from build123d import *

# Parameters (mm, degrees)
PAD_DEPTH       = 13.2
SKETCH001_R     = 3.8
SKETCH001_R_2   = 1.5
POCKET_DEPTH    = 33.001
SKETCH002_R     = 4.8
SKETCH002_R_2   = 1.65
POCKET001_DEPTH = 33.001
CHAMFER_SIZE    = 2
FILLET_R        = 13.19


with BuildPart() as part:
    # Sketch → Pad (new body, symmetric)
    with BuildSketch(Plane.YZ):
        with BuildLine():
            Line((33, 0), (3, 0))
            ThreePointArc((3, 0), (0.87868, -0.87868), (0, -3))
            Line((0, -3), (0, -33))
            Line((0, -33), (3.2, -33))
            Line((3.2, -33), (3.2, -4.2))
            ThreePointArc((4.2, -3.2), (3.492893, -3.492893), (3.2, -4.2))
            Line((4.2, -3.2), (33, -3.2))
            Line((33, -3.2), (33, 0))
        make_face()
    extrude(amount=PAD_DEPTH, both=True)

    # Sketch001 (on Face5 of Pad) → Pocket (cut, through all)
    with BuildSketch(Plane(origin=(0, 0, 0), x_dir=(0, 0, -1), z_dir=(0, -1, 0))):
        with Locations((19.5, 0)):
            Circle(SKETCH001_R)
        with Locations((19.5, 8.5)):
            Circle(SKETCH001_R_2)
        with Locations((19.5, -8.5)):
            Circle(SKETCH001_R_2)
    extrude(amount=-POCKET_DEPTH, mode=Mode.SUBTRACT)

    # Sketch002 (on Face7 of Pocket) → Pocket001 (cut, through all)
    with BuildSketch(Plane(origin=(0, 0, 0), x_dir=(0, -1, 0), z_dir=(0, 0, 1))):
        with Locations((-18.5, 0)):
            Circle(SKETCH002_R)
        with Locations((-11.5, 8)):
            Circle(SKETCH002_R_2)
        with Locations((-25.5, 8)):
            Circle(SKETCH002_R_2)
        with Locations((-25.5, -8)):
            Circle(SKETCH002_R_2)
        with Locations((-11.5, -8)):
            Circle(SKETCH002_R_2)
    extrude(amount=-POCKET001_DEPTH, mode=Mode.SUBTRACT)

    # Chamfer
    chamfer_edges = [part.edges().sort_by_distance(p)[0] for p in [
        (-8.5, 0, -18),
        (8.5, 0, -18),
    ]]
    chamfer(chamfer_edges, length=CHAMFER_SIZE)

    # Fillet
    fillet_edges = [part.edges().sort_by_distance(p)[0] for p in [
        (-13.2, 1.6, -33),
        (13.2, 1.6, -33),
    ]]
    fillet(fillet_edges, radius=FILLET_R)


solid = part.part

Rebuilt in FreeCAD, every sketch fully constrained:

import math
import FreeCAD as App
import Part
import Sketcher

V = App.Vector
Q = App.Units.Quantity


def edges_at(feature, points):
    """Names of the edges that pass closest to the given points."""
    edges = feature.Shape.Edges
    near = lambda p: min(range(len(edges)), key=lambda i: edges[i].distToShape(Part.Vertex(*p))[0])
    return sorted({f"Edge{near(p) + 1}" for p in points})

doc = App.newDocument("Part")
params = doc.addObject("Spreadsheet::Sheet", "Params")
for row, (alias, value) in enumerate([
    ("sketch1_radius", "3.000001 mm"),
    ("sketch1_radius2", "0.999999 mm"),
    ("sketch1_width", "30 mm"),
    ("sketch1_width2", "3.2 mm"),
    ("pad1_length", "26.4 mm"),
    ("sketch2_diameter", "3 mm"),
    ("sketch2_diameter2", "7.6 mm"),
    ("sketch3_diameter", "9.6 mm"),
    ("sketch3_diameter2", "3.3 mm"),
    ("chamfer_size", "2 mm"),
    ("fillet_radius", "13.19 mm"),
], start=1):
    params.set(f"A{row}", alias)
    params.set(f"B{row}", "=" + value)
    params.setAlias(f"B{row}", alias)

body = doc.addObject("PartDesign::Body", "Body")

# Sketch on YZ plane
sketch1 = body.newObject("Sketcher::SketchObject", "Sketch")
sketch1.AttachmentSupport = (doc.getObject("YZ_Plane"), [""])
sketch1.MapMode = "FlatFace"
sketch1.addGeometry([
    Part.LineSegment(V(33, 0, 0), V(3, 0, 0)),  # 0
    Part.ArcOfCircle(Part.Circle(V(3, -3, 0), V(0, 0, 1), 3), math.radians(90), math.radians(180)),  # 1
    Part.LineSegment(V(0, -3, 0), V(0, -33, 0)),  # 2
    Part.LineSegment(V(0, -33, 0), V(3.2, -33, 0)),  # 3
    Part.LineSegment(V(3.2, -33, 0), V(3.2, -4.2, 0)),  # 4
    Part.ArcOfCircle(Part.Circle(V(4.2, -4.2, 0), V(0, 0, 1), 1), math.radians(90), math.radians(180)),  # 5
    Part.LineSegment(V(4.2, -3.2, 0), V(33, -3.2, 0)),  # 6
    Part.LineSegment(V(33, -3.2, 0), V(33, 0, 0)),  # 7
], False)
sketch1.addConstraint([
    Sketcher.Constraint("Tangent", 0, 2, 1, 1),
    Sketcher.Constraint("Tangent", 1, 2, 2, 1),
    Sketcher.Constraint("Coincident", 2, 2, 3, 1),
    Sketcher.Constraint("Coincident", 3, 2, 4, 1),
    Sketcher.Constraint("Tangent", 4, 2, 5, 2),
    Sketcher.Constraint("Tangent", 5, 1, 6, 1),
    Sketcher.Constraint("Coincident", 6, 2, 7, 1),
    Sketcher.Constraint("Coincident", 7, 2, 0, 1),
    Sketcher.Constraint("Horizontal", 0),
    Sketcher.Constraint("Vertical", 2),
    Sketcher.Constraint("Horizontal", 3),
    Sketcher.Constraint("Vertical", 4),
    Sketcher.Constraint("Horizontal", 6),
    Sketcher.Constraint("Vertical", 7),
    Sketcher.Constraint("PointOnObject", 0, 2, -1),
    Sketcher.Constraint("PointOnObject", 1, 2, -2),
    Sketcher.Constraint("Equal", 0, 2),
    Sketcher.Constraint("Equal", 6, 4),
    Sketcher.Constraint("Radius", 1, Q("3.000001 mm")),
    Sketcher.Constraint("Radius", 5, Q("0.999999 mm")),
    Sketcher.Constraint("DistanceX", 0, 2, 0, 1, Q("30 mm")),
    Sketcher.Constraint("DistanceX", 3, 1, 3, 2, Q("3.2 mm")),
])
sketch1.setExpression("Constraints[18]", "Params.sketch1_radius")
sketch1.setExpression("Constraints[19]", "Params.sketch1_radius2")
sketch1.setExpression("Constraints[20]", "Params.sketch1_width")
sketch1.setExpression("Constraints[21]", "Params.sketch1_width2")
pad1 = body.newObject("PartDesign::Pad", "Pad")
pad1.Profile = sketch1
pad1.setExpression("Length", "Params.pad1_length")
pad1.Midplane = True

# Sketch on XZ plane
sketch2 = body.newObject("Sketcher::SketchObject", "Sketch001")
sketch2.AttachmentSupport = (doc.getObject("XZ_Plane"), [""])
sketch2.MapMode = "FlatFace"
sketch2.addGeometry([
    Part.Circle(V(0, -19.5, 0), V(0, 0, 1), 3.8),
    Part.Circle(V(8.5, -19.5, 0), V(0, 0, 1), 1.5),
    Part.Circle(V(-8.5, -19.5, 0), V(0, 0, 1), 1.5),
], False)
sketch2.addConstraint([
    Sketcher.Constraint("Equal", 1, 2),
    Sketcher.Constraint("Symmetric", 1, 3, 2, 3, -2),
    Sketcher.Constraint("PointOnObject", 0, 3, -2),
    Sketcher.Constraint("Horizontal", 0, 3, 1, 3),
    Sketcher.Constraint("Diameter", 1, Q("3 mm")),
    Sketcher.Constraint("Diameter", 0, Q("7.6 mm")),
    Sketcher.Constraint("DistanceX", 2, 3, 1, 3, Q("17 mm")),
    Sketcher.Constraint("DistanceY", 0, 3, -1, 1, Q("19.5 mm")),
])
sketch2.setExpression("Constraints[4]", "Params.sketch2_diameter")
sketch2.setExpression("Constraints[5]", "Params.sketch2_diameter2")
pocket1 = body.newObject("PartDesign::Pocket", "Pocket")
pocket1.Profile = sketch2
pocket1.Type = "ThroughAll"

# Sketch on XY plane
sketch3 = body.newObject("Sketcher::SketchObject", "Sketch002")
sketch3.AttachmentSupport = (doc.getObject("XY_Plane"), [""])
sketch3.MapMode = "FlatFace"
sketch3.addGeometry([
    Part.Circle(V(0, 18.5, 0), V(0, 0, 1), 4.8),  # 0
    Part.Circle(V(8, 11.5, 0), V(0, 0, 1), 1.6),  # 1
    Part.Circle(V(8, 25.5, 0), V(0, 0, 1), 1.6),  # 2
    Part.Circle(V(-8, 25.5, 0), V(0, 0, 1), 1.6),  # 3
    Part.Circle(V(-8, 11.5, 0), V(0, 0, 1), 1.6),  # 4
], False)
sketch3.addConstraint([
    Sketcher.Constraint("Equal", 1, 2),
    Sketcher.Constraint("Equal", 2, 3),
    Sketcher.Constraint("Equal", 3, 4),
    Sketcher.Constraint("Symmetric", 2, 3, 3, 3, -2),
    Sketcher.Constraint("Symmetric", 1, 3, 4, 3, -2),
    Sketcher.Constraint("PointOnObject", 0, 3, -2),
    Sketcher.Constraint("Vertical", 1, 3, 2, 3),
    Sketcher.Constraint("Diameter", 0, Q("9.6 mm")),
    Sketcher.Constraint("Diameter", 1, Q("3.3 mm")),
    Sketcher.Constraint("DistanceX", -1, 1, 1, 3, Q("8 mm")),
    Sketcher.Constraint("DistanceY", 1, 3, 0, 3, Q("7 mm")),
    Sketcher.Constraint("DistanceY", 0, 3, 2, 3, Q("7 mm")),
    Sketcher.Constraint("DistanceY", -1, 1, 0, 3, Q("18.5 mm")),
])
sketch3.setExpression("Constraints[7]", "Params.sketch3_diameter")
sketch3.setExpression("Constraints[8]", "Params.sketch3_diameter2")
pocket2 = body.newObject("PartDesign::Pocket", "Pocket001")
pocket2.Profile = sketch3
pocket2.Type = "ThroughAll"
doc.recompute()

chamfer = body.newObject("PartDesign::Chamfer", "Chamfer")
chamfer.Base = (pocket2, edges_at(pocket2, [(-8.5, 0, -18), (8.5, 0, -18)]))
chamfer.setExpression("Size", "Params.chamfer_size")
doc.recompute()

fillet = body.newObject("PartDesign::Fillet", "Fillet")
fillet.Base = (chamfer, edges_at(chamfer, [(-13.2, 1.6, -33), (13.2, 1.6, -33)]))
fillet.setExpression("Radius", "Params.fillet_radius")

doc.recompute()
